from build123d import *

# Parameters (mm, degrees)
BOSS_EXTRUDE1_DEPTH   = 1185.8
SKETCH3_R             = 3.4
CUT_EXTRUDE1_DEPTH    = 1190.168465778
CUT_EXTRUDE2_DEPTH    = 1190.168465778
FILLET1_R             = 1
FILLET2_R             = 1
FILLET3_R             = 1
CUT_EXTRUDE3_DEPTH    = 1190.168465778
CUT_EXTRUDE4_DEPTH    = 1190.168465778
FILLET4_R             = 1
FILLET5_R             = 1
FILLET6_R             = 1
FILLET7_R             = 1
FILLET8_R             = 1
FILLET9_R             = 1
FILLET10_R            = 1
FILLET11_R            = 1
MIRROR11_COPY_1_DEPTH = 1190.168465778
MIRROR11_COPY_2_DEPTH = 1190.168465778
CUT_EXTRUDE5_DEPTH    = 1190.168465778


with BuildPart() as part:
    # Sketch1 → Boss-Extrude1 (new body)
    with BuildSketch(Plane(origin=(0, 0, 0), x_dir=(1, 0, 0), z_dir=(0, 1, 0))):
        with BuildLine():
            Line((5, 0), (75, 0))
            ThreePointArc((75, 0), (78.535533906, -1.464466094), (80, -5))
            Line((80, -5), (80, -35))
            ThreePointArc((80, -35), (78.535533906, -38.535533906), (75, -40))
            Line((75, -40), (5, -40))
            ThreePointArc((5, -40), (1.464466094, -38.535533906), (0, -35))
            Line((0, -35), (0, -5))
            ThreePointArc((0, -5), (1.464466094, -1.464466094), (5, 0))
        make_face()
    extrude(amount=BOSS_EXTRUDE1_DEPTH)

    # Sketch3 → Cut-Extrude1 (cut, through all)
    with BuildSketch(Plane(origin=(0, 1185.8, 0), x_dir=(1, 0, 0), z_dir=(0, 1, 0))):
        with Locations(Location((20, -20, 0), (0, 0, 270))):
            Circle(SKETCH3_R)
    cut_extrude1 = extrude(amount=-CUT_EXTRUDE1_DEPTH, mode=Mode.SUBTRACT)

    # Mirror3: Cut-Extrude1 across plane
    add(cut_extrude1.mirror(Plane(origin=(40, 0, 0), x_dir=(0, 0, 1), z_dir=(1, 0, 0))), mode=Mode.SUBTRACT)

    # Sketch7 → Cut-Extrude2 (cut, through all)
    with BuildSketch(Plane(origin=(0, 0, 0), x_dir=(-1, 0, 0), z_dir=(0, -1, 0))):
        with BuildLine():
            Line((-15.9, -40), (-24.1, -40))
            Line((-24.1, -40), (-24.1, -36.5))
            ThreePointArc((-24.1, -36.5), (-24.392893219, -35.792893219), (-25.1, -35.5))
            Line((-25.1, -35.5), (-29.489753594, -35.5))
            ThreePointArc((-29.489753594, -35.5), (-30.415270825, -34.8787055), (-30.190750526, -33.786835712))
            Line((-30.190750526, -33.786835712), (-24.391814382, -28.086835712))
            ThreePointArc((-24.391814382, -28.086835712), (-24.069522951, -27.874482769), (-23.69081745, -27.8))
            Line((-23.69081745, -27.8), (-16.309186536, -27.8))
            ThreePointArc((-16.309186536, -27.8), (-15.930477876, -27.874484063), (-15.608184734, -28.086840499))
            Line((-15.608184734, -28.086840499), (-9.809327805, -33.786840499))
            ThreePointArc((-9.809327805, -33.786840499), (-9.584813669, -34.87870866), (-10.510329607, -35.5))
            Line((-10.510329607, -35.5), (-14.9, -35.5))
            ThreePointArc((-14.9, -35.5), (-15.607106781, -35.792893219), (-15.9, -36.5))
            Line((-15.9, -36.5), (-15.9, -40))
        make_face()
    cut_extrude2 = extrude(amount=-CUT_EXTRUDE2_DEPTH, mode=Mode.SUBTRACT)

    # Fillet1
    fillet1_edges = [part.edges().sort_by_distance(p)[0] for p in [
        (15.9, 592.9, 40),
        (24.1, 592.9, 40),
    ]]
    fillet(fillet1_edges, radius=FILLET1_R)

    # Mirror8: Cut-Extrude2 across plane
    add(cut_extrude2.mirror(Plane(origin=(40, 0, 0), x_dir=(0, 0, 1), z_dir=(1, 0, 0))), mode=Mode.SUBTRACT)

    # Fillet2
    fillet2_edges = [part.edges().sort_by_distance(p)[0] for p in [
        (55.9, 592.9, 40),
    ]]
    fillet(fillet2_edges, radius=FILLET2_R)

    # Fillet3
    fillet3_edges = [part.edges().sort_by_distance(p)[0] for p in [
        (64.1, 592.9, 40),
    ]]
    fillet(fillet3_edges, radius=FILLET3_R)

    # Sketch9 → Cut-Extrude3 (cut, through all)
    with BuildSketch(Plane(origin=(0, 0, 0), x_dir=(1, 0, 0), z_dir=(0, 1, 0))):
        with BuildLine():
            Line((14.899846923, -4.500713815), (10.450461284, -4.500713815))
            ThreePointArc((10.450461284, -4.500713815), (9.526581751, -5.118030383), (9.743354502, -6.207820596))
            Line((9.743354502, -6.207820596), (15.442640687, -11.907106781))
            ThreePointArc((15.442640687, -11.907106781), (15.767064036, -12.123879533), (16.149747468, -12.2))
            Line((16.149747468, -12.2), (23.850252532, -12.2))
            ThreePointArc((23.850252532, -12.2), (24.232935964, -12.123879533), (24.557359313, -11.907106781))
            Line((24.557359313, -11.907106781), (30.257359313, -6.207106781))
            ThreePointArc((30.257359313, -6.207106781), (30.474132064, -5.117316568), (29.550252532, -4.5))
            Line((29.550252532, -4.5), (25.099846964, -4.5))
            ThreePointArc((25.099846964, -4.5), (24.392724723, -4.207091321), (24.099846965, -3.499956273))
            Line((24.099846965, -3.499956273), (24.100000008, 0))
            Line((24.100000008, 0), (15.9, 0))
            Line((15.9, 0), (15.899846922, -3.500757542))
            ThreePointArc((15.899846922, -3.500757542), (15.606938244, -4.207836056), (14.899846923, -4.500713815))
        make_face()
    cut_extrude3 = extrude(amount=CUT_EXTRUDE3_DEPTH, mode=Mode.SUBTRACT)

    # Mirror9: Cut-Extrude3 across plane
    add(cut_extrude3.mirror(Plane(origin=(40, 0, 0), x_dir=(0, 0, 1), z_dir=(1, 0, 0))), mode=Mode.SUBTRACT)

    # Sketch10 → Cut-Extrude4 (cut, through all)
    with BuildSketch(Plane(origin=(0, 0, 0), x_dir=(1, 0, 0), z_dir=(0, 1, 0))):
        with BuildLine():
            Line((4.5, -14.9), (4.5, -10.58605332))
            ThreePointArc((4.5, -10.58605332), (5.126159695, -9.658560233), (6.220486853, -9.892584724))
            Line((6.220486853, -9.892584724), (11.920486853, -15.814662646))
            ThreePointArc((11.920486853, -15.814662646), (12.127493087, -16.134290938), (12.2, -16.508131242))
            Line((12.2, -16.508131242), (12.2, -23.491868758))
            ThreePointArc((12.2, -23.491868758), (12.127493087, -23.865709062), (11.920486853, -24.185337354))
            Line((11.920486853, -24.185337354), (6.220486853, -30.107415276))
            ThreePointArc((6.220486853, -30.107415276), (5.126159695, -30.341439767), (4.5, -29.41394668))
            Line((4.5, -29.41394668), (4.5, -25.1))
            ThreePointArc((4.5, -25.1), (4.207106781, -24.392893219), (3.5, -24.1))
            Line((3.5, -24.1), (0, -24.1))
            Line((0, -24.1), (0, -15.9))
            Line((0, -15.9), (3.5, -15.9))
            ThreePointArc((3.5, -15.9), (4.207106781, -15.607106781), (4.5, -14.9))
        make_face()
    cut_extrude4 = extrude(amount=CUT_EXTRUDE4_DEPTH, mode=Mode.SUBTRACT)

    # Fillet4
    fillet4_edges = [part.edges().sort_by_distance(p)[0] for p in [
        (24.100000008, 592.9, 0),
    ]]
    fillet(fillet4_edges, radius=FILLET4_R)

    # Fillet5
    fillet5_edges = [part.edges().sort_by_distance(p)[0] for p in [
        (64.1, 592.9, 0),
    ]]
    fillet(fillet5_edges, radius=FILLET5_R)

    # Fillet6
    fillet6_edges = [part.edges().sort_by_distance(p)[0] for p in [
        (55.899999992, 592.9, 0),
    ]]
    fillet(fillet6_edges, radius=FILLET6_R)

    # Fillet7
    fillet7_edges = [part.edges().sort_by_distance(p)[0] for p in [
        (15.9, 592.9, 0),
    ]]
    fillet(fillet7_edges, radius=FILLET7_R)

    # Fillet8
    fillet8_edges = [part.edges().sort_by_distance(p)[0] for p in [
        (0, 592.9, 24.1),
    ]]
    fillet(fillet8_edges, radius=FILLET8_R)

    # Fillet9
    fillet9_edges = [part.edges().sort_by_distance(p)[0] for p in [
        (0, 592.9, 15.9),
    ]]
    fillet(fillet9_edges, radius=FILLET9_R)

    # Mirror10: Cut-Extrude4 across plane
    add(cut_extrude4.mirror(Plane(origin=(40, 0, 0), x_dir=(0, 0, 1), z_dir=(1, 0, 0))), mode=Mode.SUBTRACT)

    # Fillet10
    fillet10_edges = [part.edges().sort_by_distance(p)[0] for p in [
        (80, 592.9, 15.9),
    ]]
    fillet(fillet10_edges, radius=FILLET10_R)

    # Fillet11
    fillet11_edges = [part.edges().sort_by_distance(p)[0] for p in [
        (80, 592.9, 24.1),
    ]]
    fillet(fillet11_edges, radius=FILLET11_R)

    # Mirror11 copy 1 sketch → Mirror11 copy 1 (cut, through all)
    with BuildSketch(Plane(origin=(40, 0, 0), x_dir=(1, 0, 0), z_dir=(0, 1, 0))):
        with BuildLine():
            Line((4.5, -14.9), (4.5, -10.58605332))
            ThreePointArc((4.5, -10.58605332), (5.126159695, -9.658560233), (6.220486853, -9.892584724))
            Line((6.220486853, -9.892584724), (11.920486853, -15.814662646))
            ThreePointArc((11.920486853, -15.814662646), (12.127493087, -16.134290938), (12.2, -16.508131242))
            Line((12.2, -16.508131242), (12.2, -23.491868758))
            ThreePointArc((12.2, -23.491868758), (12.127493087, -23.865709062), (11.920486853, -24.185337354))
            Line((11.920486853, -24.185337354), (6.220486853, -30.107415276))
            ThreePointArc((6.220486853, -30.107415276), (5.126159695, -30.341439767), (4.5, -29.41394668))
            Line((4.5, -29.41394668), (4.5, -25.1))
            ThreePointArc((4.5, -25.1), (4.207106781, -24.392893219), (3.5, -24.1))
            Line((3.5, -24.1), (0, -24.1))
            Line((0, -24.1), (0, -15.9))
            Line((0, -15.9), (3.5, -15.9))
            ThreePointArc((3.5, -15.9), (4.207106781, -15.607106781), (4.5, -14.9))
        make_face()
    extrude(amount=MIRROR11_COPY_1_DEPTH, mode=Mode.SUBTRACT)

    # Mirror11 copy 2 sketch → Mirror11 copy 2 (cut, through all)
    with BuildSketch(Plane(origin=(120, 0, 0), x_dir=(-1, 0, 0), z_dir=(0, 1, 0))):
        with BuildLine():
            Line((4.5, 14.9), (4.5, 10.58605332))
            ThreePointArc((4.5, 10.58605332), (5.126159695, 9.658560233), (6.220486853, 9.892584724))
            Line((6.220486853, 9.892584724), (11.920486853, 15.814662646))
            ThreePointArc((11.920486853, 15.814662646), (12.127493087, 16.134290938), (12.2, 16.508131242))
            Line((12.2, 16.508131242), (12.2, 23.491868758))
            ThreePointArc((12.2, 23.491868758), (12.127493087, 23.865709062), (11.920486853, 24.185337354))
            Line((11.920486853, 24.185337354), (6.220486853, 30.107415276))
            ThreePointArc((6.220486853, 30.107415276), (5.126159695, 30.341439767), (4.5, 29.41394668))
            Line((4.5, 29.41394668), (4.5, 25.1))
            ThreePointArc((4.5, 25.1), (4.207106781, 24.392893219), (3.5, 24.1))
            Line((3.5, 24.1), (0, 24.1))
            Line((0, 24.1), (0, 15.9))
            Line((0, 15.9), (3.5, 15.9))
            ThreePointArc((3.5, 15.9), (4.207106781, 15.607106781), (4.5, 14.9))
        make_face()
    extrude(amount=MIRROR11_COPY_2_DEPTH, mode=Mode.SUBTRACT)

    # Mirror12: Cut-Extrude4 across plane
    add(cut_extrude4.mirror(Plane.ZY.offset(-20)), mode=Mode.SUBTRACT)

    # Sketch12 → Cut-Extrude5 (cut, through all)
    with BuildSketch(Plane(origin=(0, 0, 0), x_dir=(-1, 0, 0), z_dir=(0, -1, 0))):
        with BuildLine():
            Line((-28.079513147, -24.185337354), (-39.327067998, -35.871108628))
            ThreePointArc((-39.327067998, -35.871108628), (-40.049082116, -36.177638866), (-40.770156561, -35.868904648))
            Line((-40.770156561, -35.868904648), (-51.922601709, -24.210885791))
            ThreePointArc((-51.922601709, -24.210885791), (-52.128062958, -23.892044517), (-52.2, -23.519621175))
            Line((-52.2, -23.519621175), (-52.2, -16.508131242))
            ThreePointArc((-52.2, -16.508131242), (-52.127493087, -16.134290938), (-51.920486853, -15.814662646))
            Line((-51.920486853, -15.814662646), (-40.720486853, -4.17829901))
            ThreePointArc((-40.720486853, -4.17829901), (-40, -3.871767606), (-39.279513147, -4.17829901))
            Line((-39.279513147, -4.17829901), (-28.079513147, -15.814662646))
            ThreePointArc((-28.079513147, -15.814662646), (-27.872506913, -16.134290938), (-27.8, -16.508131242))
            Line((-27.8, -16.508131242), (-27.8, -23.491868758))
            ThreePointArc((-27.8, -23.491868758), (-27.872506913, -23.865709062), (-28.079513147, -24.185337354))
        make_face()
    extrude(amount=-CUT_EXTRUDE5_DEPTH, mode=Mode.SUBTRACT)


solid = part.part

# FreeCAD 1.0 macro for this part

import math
import FreeCAD as App
import Part
import Sketcher
from FreeCAD import Vector


def edges_at(feature, points):
    """Names of the edges that pass closest to the given points."""
    edges = feature.Shape.Edges
    near = lambda p: min(range(len(edges)), key=lambda i: edges[i].distToShape(Part.Vertex(*p))[0])
    return sorted({f"Edge{near(p) + 1}" for p in points})

doc = App.newDocument("Part")
body = doc.addObject("PartDesign::Body", "Body")

sketch1 = body.newObject("Sketcher::SketchObject", "Sketch")
sketch1.AttachmentSupport = (doc.getObject("XZ_Plane"), [""])
sketch1.MapMode = "FlatFace"
sketch1.addGeometry([
    Part.LineSegment(Vector(75, 0, 0), Vector(5, 0, 0)),
    Part.ArcOfCircle(Part.Circle(Vector(5, 5, 0), Vector(0, 0, 1), 5), math.radians(180), math.radians(270)),
    Part.LineSegment(Vector(0, 5, 0), Vector(0, 35, 0)),
    Part.ArcOfCircle(Part.Circle(Vector(5, 35, 0), Vector(0, 0, 1), 5), math.radians(90), math.radians(180)),
    Part.LineSegment(Vector(5, 40, 0), Vector(75, 40, 0)),
    Part.ArcOfCircle(Part.Circle(Vector(75, 35, 0), Vector(0, 0, 1), 5), math.radians(0), math.radians(90)),
    Part.LineSegment(Vector(80, 35, 0), Vector(80, 5, 0)),
    Part.ArcOfCircle(Part.Circle(Vector(75, 5, 0), Vector(0, 0, 1), 5), math.radians(-90), math.radians(0)),
], False)
sketch1.addConstraint([
    Sketcher.Constraint("Tangent", 0, 2, 1, 2),
    Sketcher.Constraint("Tangent", 1, 1, 2, 1),
    Sketcher.Constraint("Tangent", 2, 2, 3, 2),
    Sketcher.Constraint("Tangent", 3, 1, 4, 1),
    Sketcher.Constraint("Tangent", 4, 2, 5, 2),
    Sketcher.Constraint("Tangent", 5, 1, 6, 1),
    Sketcher.Constraint("Tangent", 6, 2, 7, 2),
    Sketcher.Constraint("Tangent", 7, 1, 0, 1),
    Sketcher.Constraint("Horizontal", 0),
    Sketcher.Constraint("Vertical", 2),
    Sketcher.Constraint("Horizontal", 4),
    Sketcher.Constraint("Vertical", 6),
    Sketcher.Constraint("Equal", 1, 3),
    Sketcher.Constraint("Equal", 3, 5),
    Sketcher.Constraint("Equal", 5, 7),
    Sketcher.Constraint("PointOnObject", 0, 2, -1),
    Sketcher.Constraint("PointOnObject", 1, 1, -2),
    Sketcher.Constraint("Radius", 1, 5.0),
    Sketcher.Constraint("DistanceX", 0, 2, 0, 1, 70.0),
    Sketcher.Constraint("DistanceY", 2, 1, 2, 2, 30.0),
])
pad1 = body.newObject("PartDesign::Pad", "Pad")
pad1.Profile = sketch1
pad1.Length = 1185.8
pad1.Reversed = True

sketch2 = body.newObject("Sketcher::SketchObject", "Sketch001")
sketch2.AttachmentSupport = (doc.getObject("XZ_Plane"), [""])
sketch2.MapMode = "FlatFace"
sketch2.AttachmentOffset = App.Placement(Vector(0, 0, -1185.8), App.Rotation())
sketch2.addGeometry(Part.Circle(Vector(20, 20, 0), Vector(0, 0, 1), 3.4), False)
sketch2.addConstraint([
    Sketcher.Constraint("Diameter", 0, 6.8),
    Sketcher.Constraint("DistanceX", -1, 1, 0, 3, 20.0),
    Sketcher.Constraint("DistanceY", -1, 1, 0, 3, 20.0),
])
pocket1 = body.newObject("PartDesign::Pocket", "Pocket")
pocket1.Profile = sketch2
pocket1.Type = "ThroughAll"
pocket1.Reversed = True
doc.recompute()

datumplane = body.newObject("PartDesign::Plane", "DatumPlane")
datumplane.AttachmentSupport = (doc.getObject("YZ_Plane"), [""])
datumplane.MapMode = "FlatFace"
datumplane.AttachmentOffset = App.Placement(Vector(0, 0, 40), App.Rotation())
mirrored = body.newObject("PartDesign::Mirrored", "Mirrored")
mirrored.Originals = [pocket1]
mirrored.MirrorPlane = (datumplane, [""])
body.Tip = mirrored

sketch3 = body.newObject("Sketcher::SketchObject", "Sketch002")
sketch3.AttachmentSupport = (doc.getObject("XZ_Plane"), [""])
sketch3.MapMode = "FlatFace"
sketch3.addGeometry([
    Part.LineSegment(Vector(24.1, 40, 0), Vector(15.9, 40, 0)),
    Part.LineSegment(Vector(15.9, 40, 0), Vector(15.9, 36.5, 0)),
    Part.ArcOfCircle(Part.Circle(Vector(14.9, 36.5, 0), Vector(0, 0, 1), 1), math.radians(-90), math.radians(0)),
    Part.LineSegment(Vector(14.9, 35.5, 0), Vector(10.5, 35.5, 0)),
    Part.ArcOfCircle(Part.Circle(Vector(10.5, 34.5, 0), Vector(0, 0, 1), 1), math.radians(90), math.radians(225)),
    Part.LineSegment(Vector(9.8, 33.8, 0), Vector(15.6, 28.1, 0)),
    Part.ArcOfCircle(Part.Circle(Vector(16.3, 28.8, 0), Vector(0, 0, 1), 1), math.radians(-135), math.radians(-90)),
    Part.LineSegment(Vector(16.3, 27.8, 0), Vector(23.7, 27.8, 0)),
    Part.ArcOfCircle(Part.Circle(Vector(23.7, 28.8, 0), Vector(0, 0, 1), 1), math.radians(-90), math.radians(-45)),
    Part.LineSegment(Vector(24.4, 28.1, 0), Vector(30.2, 33.8, 0)),
    Part.ArcOfCircle(Part.Circle(Vector(29.5, 34.5, 0), Vector(0, 0, 1), 1), math.radians(-45), math.radians(90)),
    Part.LineSegment(Vector(29.5, 35.5, 0), Vector(25.1, 35.5, 0)),
    Part.ArcOfCircle(Part.Circle(Vector(25.1, 36.5, 0), Vector(0, 0, 1), 1), math.radians(-180), math.radians(-90)),
    Part.LineSegment(Vector(24.1, 36.5, 0), Vector(24.1, 40, 0)),
], False)
sketch3.addConstraint([
    Sketcher.Constraint("Coincident", 0, 2, 1, 1),
    Sketcher.Constraint("Tangent", 1, 2, 2, 2),
    Sketcher.Constraint("Tangent", 2, 1, 3, 1),
    Sketcher.Constraint("Tangent", 3, 2, 4, 1),
    Sketcher.Constraint("Tangent", 4, 2, 5, 1),
    Sketcher.Constraint("Tangent", 5, 2, 6, 1),
    Sketcher.Constraint("Tangent", 6, 2, 7, 1),
    Sketcher.Constraint("Tangent", 7, 2, 8, 1),
    Sketcher.Constraint("Tangent", 8, 2, 9, 1),
    Sketcher.Constraint("Tangent", 9, 2, 10, 1),
    Sketcher.Constraint("Tangent", 10, 2, 11, 1),
    Sketcher.Constraint("Tangent", 11, 2, 12, 2),
    Sketcher.Constraint("Tangent", 12, 1, 13, 1),
    Sketcher.Constraint("Coincident", 13, 2, 0, 1),
    Sketcher.Constraint("Horizontal", 0),
    Sketcher.Constraint("Vertical", 1),
    Sketcher.Constraint("Horizontal", 3),
    Sketcher.Constraint("Horizontal", 7),
    Sketcher.Constraint("Horizontal", 11),
    Sketcher.Constraint("Vertical", 13),
    Sketcher.Constraint("Equal", 2, 4),
    Sketcher.Constraint("Equal", 4, 6),
    Sketcher.Constraint("Equal", 6, 8),
    Sketcher.Constraint("Equal", 8, 10),
    Sketcher.Constraint("Equal", 10, 12),
    Sketcher.Constraint("Horizontal", 4, 3, 10, 3),
    Sketcher.Constraint("Radius", 2, 1.0),
    Sketcher.Constraint("DistanceX", 0, 2, 0, 1, 8.2),
    Sketcher.Constraint("DistanceY", 1, 2, 1, 1, 3.5),
    Sketcher.Constraint("DistanceY", -1, 1, 0, 2, 40.0),
    Sketcher.Constraint("DistanceX", -1, 1, 2, 3, 14.9),
    Sketcher.Constraint("DistanceY", -1, 1, 6, 3, 28.8),
    Sketcher.Constraint("DistanceX", 4, 2, 4, 3, 0.701002),
    Sketcher.Constraint("DistanceX", 3, 2, 3, 1, 4.38967),
    Sketcher.Constraint("DistanceX", 7, 1, 7, 2, 7.381631),
    Sketcher.Constraint("DistanceX", 11, 2, 11, 1, 4.389754),
])
pocket2 = body.newObject("PartDesign::Pocket", "Pocket001")
pocket2.Profile = sketch3
pocket2.Type = "ThroughAll"
doc.recompute()

fillet = body.newObject("PartDesign::Fillet", "Fillet")
fillet.Base = (pocket2, edges_at(pocket2, [(15.9, 592.9, 40), (24.1, 592.9, 40)]))
fillet.Radius = 1
doc.recompute()

datumplane2 = body.newObject("PartDesign::Plane", "DatumPlane001")
datumplane2.AttachmentSupport = (doc.getObject("YZ_Plane"), [""])
datumplane2.MapMode = "FlatFace"
datumplane2.AttachmentOffset = App.Placement(Vector(0, 0, 40), App.Rotation())
mirrored2 = body.newObject("PartDesign::Mirrored", "Mirrored001")
mirrored2.Originals = [pocket2]
mirrored2.MirrorPlane = (datumplane2, [""])
body.Tip = mirrored2
doc.recompute()

fillet2 = body.newObject("PartDesign::Fillet", "Fillet001")
fillet2.Base = (mirrored2, edges_at(mirrored2, [(55.9, 592.9, 40)]))
fillet2.Radius = 1
doc.recompute()

fillet3 = body.newObject("PartDesign::Fillet", "Fillet002")
fillet3.Base = (fillet2, edges_at(fillet2, [(64.1, 592.9, 40)]))
fillet3.Radius = 1

sketch4 = body.newObject("Sketcher::SketchObject", "Sketch003")
sketch4.AttachmentSupport = (doc.getObject("XZ_Plane"), [""])
sketch4.MapMode = "FlatFace"
sketch4.addGeometry([
    Part.LineSegment(Vector(14.9, 4.5, 0), Vector(10.5, 4.5, 0)),
    Part.ArcOfCircle(Part.Circle(Vector(10.5, 5.5, 0), Vector(0, 0, 1), 1), math.radians(135), math.radians(270)),
    Part.LineSegment(Vector(9.7, 6.2, 0), Vector(15.4, 11.9, 0)),
    Part.ArcOfCircle(Part.Circle(Vector(16.1, 11.2, 0), Vector(0, 0, 1), 1), math.radians(90), math.radians(135)),
    Part.LineSegment(Vector(16.1, 12.2, 0), Vector(23.9, 12.2, 0)),
    Part.ArcOfCircle(Part.Circle(Vector(23.9, 11.2, 0), Vector(0, 0, 1), 1), math.radians(45), math.radians(90)),
    Part.LineSegment(Vector(24.6, 11.9, 0), Vector(30.3, 6.2, 0)),
    Part.ArcOfCircle(Part.Circle(Vector(29.6, 5.5, 0), Vector(0, 0, 1), 1), math.radians(-90), math.radians(45)),
    Part.LineSegment(Vector(29.6, 4.5, 0), Vector(25.1, 4.5, 0)),
    Part.ArcOfCircle(Part.Circle(Vector(25.1, 3.5, 0), Vector(0, 0, 1), 1), math.radians(90), math.radians(180)),
    Part.LineSegment(Vector(24.1, 3.5, 0), Vector(24.1, 0, 0)),
    Part.LineSegment(Vector(24.1, 0, 0), Vector(15.9, 0, 0)),
    Part.LineSegment(Vector(15.9, 0, 0), Vector(15.9, 3.5, 0)),
    Part.ArcOfCircle(Part.Circle(Vector(14.9, 3.5, 0), Vector(0, 0, 1), 1), math.radians(0), math.radians(90)),
], False)
sketch4.addConstraint([
    Sketcher.Constraint("Tangent", 0, 2, 1, 2),
    Sketcher.Constraint("Tangent", 1, 1, 2, 1),
    Sketcher.Constraint("Tangent", 2, 2, 3, 2),
    Sketcher.Constraint("Tangent", 3, 1, 4, 1),
    Sketcher.Constraint("Tangent", 4, 2, 5, 2),
    Sketcher.Constraint("Tangent", 5, 1, 6, 1),
    Sketcher.Constraint("Tangent", 6, 2, 7, 2),
    Sketcher.Constraint("Tangent", 7, 1, 8, 1),
    Sketcher.Constraint("Tangent", 8, 2, 9, 1),
    Sketcher.Constraint("Tangent", 9, 2, 10, 1),
    Sketcher.Constraint("Coincident", 10, 2, 11, 1),
    Sketcher.Constraint("Coincident", 11, 2, 12, 1),
    Sketcher.Constraint("Tangent", 12, 2, 13, 1),
    Sketcher.Constraint("Tangent", 13, 2, 0, 1),
    Sketcher.Constraint("Horizontal", 0),
    Sketcher.Constraint("Horizontal", 4),
    Sketcher.Constraint("Horizontal", 8),
    Sketcher.Constraint("Horizontal", 11),
    Sketcher.Constraint("Equal", 1, 3),
    Sketcher.Constraint("Equal", 3, 5),
    Sketcher.Constraint("Equal", 5, 7),
    Sketcher.Constraint("Equal", 7, 9),
    Sketcher.Constraint("Equal", 9, 13),
    Sketcher.Constraint("PointOnObject", 10, 2, -1),
    Sketcher.Constraint("Perpendicular", 2, 6),
    Sketcher.Constraint("Parallel", 10, 12),
    Sketcher.Constraint("Horizontal", 2, 2, 5, 1),
    Sketcher.Constraint("Radius", 1, 1.0),
    Sketcher.Constraint("DistanceX", 11, 2, 11, 1, 8.2),
    Sketcher.Constraint("DistanceY", -1, 1, 3, 3, 11.2),
    Sketcher.Constraint("DistanceY", -1, 1, 7, 3, 5.5),
    Sketcher.Constraint("DistanceX", -1, 1, 10, 2, 24.1),
    Sketcher.Constraint("DistanceX", 3, 3, 9, 3, 8.950099),
    Sketcher.Constraint("DistanceX", 1, 1, 5, 3, 14.106898),
    Sketcher.Constraint("DistanceX", 0, 2, 0, 1, 4.449386),
    Sketcher.Constraint("DistanceX", -1, 1, 1, 3, 10.450461),
])
pocket3 = body.newObject("PartDesign::Pocket", "Pocket002")
pocket3.Profile = sketch4
pocket3.Type = "ThroughAll"
doc.recompute()

datumplane3 = body.newObject("PartDesign::Plane", "DatumPlane002")
datumplane3.AttachmentSupport = (doc.getObject("YZ_Plane"), [""])
datumplane3.MapMode = "FlatFace"
datumplane3.AttachmentOffset = App.Placement(Vector(0, 0, 40), App.Rotation())
mirrored3 = body.newObject("PartDesign::Mirrored", "Mirrored002")
mirrored3.Originals = [pocket3]
mirrored3.MirrorPlane = (datumplane3, [""])
body.Tip = mirrored3

sketch5 = body.newObject("Sketcher::SketchObject", "Sketch004")
sketch5.AttachmentSupport = (doc.getObject("XZ_Plane"), [""])
sketch5.MapMode = "FlatFace"
sketch5.addGeometry([
    Part.LineSegment(Vector(4.5, 10.6, 0), Vector(4.5, 14.9, 0)),
    Part.ArcOfCircle(Part.Circle(Vector(3.5, 14.9, 0), Vector(0, 0, 1), 1), math.radians(0), math.radians(90)),
    Part.LineSegment(Vector(3.5, 15.9, 0), Vector(0, 15.9, 0)),
    Part.LineSegment(Vector(0, 15.9, 0), Vector(0, 24.1, 0)),
    Part.LineSegment(Vector(0, 24.1, 0), Vector(3.5, 24.1, 0)),
    Part.ArcOfCircle(Part.Circle(Vector(3.5, 25.1, 0), Vector(0, 0, 1), 1), math.radians(-90), math.radians(0)),
    Part.LineSegment(Vector(4.5, 25.1, 0), Vector(4.5, 29.4, 0)),
    Part.ArcOfCircle(Part.Circle(Vector(5.5, 29.4, 0), Vector(0, 0, 1), 1), math.radians(44), math.radians(180)),
    Part.LineSegment(Vector(6.2, 30.1, 0), Vector(11.9, 24.2, 0)),
    Part.ArcOfCircle(Part.Circle(Vector(11.2, 23.5, 0), Vector(0, 0, 1), 1), math.radians(0), math.radians(44)),
    Part.LineSegment(Vector(12.2, 23.5, 0), Vector(12.2, 16.5, 0)),
    Part.ArcOfCircle(Part.Circle(Vector(11.2, 16.5, 0), Vector(0, 0, 1), 1), math.radians(-44), math.radians(0)),
    Part.LineSegment(Vector(11.9, 15.8, 0), Vector(6.2, 9.9, 0)),
    Part.ArcOfCircle(Part.Circle(Vector(5.5, 10.6, 0), Vector(0, 0, 1), 1), math.radians(180), math.radians(316)),
], False)
sketch5.addConstraint([
    Sketcher.Constraint("Tangent", 0, 2, 1, 1),
    Sketcher.Constraint("Tangent", 1, 2, 2, 1),
    Sketcher.Constraint("Coincident", 2, 2, 3, 1),
    Sketcher.Constraint("Coincident", 3, 2, 4, 1),
    Sketcher.Constraint("Tangent", 4, 2, 5, 1),
    Sketcher.Constraint("Tangent", 5, 2, 6, 1),
    Sketcher.Constraint("Tangent", 6, 2, 7, 2),
    Sketcher.Constraint("Tangent", 7, 1, 8, 1),
    Sketcher.Constraint("Tangent", 8, 2, 9, 2),
    Sketcher.Constraint("Tangent", 9, 1, 10, 1),
    Sketcher.Constraint("Tangent", 10, 2, 11, 2),
    Sketcher.Constraint("Tangent", 11, 1, 12, 1),
    Sketcher.Constraint("Tangent", 12, 2, 13, 2),
    Sketcher.Constraint("Tangent", 13, 1, 0, 1),
    Sketcher.Constraint("Vertical", 0),
    Sketcher.Constraint("Horizontal", 2),
    Sketcher.Constraint("Vertical", 3),
    Sketcher.Constraint("Horizontal", 4),
    Sketcher.Constraint("Vertical", 6),
    Sketcher.Constraint("Vertical", 10),
    Sketcher.Constraint("Equal", 1, 5),
    Sketcher.Constraint("Equal", 5, 7),
    Sketcher.Constraint("Equal", 7, 9),
    Sketcher.Constraint("Equal", 9, 11),
    Sketcher.Constraint("Equal", 11, 13),
    Sketcher.Constraint("PointOnObject", 2, 2, -2),
    Sketcher.Constraint("Vertical", 1, 3, 5, 3),
    Sketcher.Constraint("Vertical", 8, 2, 11, 1),
    Sketcher.Constraint("Equal", 0, 6),
    Sketcher.Constraint("Radius", 1, 1.0),
    Sketcher.Constraint("DistanceX", 2, 2, 2, 1, 3.5),
    Sketcher.Constraint("DistanceY", 3, 1, 3, 2, 8.2),
    Sketcher.Constraint("DistanceY", -1, 1, 1, 3, 14.9),
    Sketcher.Constraint("DistanceX", -1, 1, 9, 3, 11.2),
    Sketcher.Constraint("Distance", 8, 8.21955),
    Sketcher.Constraint("DistanceY", 0, 1, 0, 2, 4.313947),
])
pocket4 = body.newObject("PartDesign::Pocket", "Pocket003")
pocket4.Profile = sketch5
pocket4.Type = "ThroughAll"
doc.recompute()

fillet4 = body.newObject("PartDesign::Fillet", "Fillet003")
fillet4.Base = (pocket4, edges_at(pocket4, [(24.1, 592.9, 0)]))
fillet4.Radius = 1
doc.recompute()

fillet5 = body.newObject("PartDesign::Fillet", "Fillet004")
fillet5.Base = (fillet4, edges_at(fillet4, [(64.1, 592.9, 0)]))
fillet5.Radius = 1
doc.recompute()

fillet6 = body.newObject("PartDesign::Fillet", "Fillet005")
fillet6.Base = (fillet5, edges_at(fillet5, [(55.9, 592.9, 0)]))
fillet6.Radius = 1
doc.recompute()

fillet7 = body.newObject("PartDesign::Fillet", "Fillet006")
fillet7.Base = (fillet6, edges_at(fillet6, [(15.9, 592.9, 0)]))
fillet7.Radius = 1
doc.recompute()

fillet8 = body.newObject("PartDesign::Fillet", "Fillet007")
fillet8.Base = (fillet7, edges_at(fillet7, [(0, 592.9, 24.1)]))
fillet8.Radius = 1
doc.recompute()

fillet9 = body.newObject("PartDesign::Fillet", "Fillet008")
fillet9.Base = (fillet8, edges_at(fillet8, [(0, 592.9, 15.9)]))
fillet9.Radius = 1
doc.recompute()

datumplane4 = body.newObject("PartDesign::Plane", "DatumPlane003")
datumplane4.AttachmentSupport = (doc.getObject("YZ_Plane"), [""])
datumplane4.MapMode = "FlatFace"
datumplane4.AttachmentOffset = App.Placement(Vector(0, 0, 40), App.Rotation())
mirrored4 = body.newObject("PartDesign::Mirrored", "Mirrored003")
mirrored4.Originals = [pocket4]
mirrored4.MirrorPlane = (datumplane4, [""])
body.Tip = mirrored4
doc.recompute()

fillet10 = body.newObject("PartDesign::Fillet", "Fillet009")
fillet10.Base = (mirrored4, edges_at(mirrored4, [(80, 592.9, 15.9)]))
fillet10.Radius = 1
doc.recompute()

fillet11 = body.newObject("PartDesign::Fillet", "Fillet010")
fillet11.Base = (fillet10, edges_at(fillet10, [(80, 592.9, 24.1)]))
fillet11.Radius = 1

sketch6 = body.newObject("Sketcher::SketchObject", "Sketch005")
sketch6.AttachmentSupport = (doc.getObject("XZ_Plane"), [""])
sketch6.MapMode = "FlatFace"
sketch6.addGeometry([
    Part.LineSegment(Vector(44.5, 10.6, 0), Vector(44.5, 14.9, 0)),
    Part.ArcOfCircle(Part.Circle(Vector(43.5, 14.9, 0), Vector(0, 0, 1), 1), math.radians(0), math.radians(90)),
    Part.LineSegment(Vector(43.5, 15.9, 0), Vector(40, 15.9, 0)),
    Part.LineSegment(Vector(40, 15.9, 0), Vector(40, 24.1, 0)),
    Part.LineSegment(Vector(40, 24.1, 0), Vector(43.5, 24.1, 0)),
    Part.ArcOfCircle(Part.Circle(Vector(43.5, 25.1, 0), Vector(0, 0, 1), 1), math.radians(-90), math.radians(0)),
    Part.LineSegment(Vector(44.5, 25.1, 0), Vector(44.5, 29.4, 0)),
    Part.ArcOfCircle(Part.Circle(Vector(45.5, 29.4, 0), Vector(0, 0, 1), 1), math.radians(44), math.radians(180)),
    Part.LineSegment(Vector(46.2, 30.1, 0), Vector(51.9, 24.2, 0)),
    Part.ArcOfCircle(Part.Circle(Vector(51.2, 23.5, 0), Vector(0, 0, 1), 1), math.radians(0), math.radians(44)),
    Part.LineSegment(Vector(52.2, 23.5, 0), Vector(52.2, 16.5, 0)),
    Part.ArcOfCircle(Part.Circle(Vector(51.2, 16.5, 0), Vector(0, 0, 1), 1), math.radians(-44), math.radians(0)),
    Part.LineSegment(Vector(51.9, 15.8, 0), Vector(46.2, 9.9, 0)),
    Part.ArcOfCircle(Part.Circle(Vector(45.5, 10.6, 0), Vector(0, 0, 1), 1), math.radians(180), math.radians(316)),
], False)
sketch6.addConstraint([
    Sketcher.Constraint("Tangent", 0, 2, 1, 1),
    Sketcher.Constraint("Tangent", 1, 2, 2, 1),
    Sketcher.Constraint("Coincident", 2, 2, 3, 1),
    Sketcher.Constraint("Coincident", 3, 2, 4, 1),
    Sketcher.Constraint("Tangent", 4, 2, 5, 1),
    Sketcher.Constraint("Tangent", 5, 2, 6, 1),
    Sketcher.Constraint("Tangent", 6, 2, 7, 2),
    Sketcher.Constraint("Tangent", 7, 1, 8, 1),
    Sketcher.Constraint("Tangent", 8, 2, 9, 2),
    Sketcher.Constraint("Tangent", 9, 1, 10, 1),
    Sketcher.Constraint("Tangent", 10, 2, 11, 2),
    Sketcher.Constraint("Tangent", 11, 1, 12, 1),
    Sketcher.Constraint("Tangent", 12, 2, 13, 2),
    Sketcher.Constraint("Tangent", 13, 1, 0, 1),
    Sketcher.Constraint("Vertical", 0),
    Sketcher.Constraint("Horizontal", 2),
    Sketcher.Constraint("Vertical", 3),
    Sketcher.Constraint("Horizontal", 4),
    Sketcher.Constraint("Vertical", 6),
    Sketcher.Constraint("Vertical", 10),
    Sketcher.Constraint("Equal", 1, 5),
    Sketcher.Constraint("Equal", 5, 7),
    Sketcher.Constraint("Equal", 7, 9),
    Sketcher.Constraint("Equal", 9, 11),
    Sketcher.Constraint("Equal", 11, 13),
    Sketcher.Constraint("Vertical", 1, 3, 5, 3),
    Sketcher.Constraint("Vertical", 8, 2, 11, 1),
    Sketcher.Constraint("Equal", 0, 6),
    Sketcher.Constraint("Radius", 1, 1.0),
    Sketcher.Constraint("DistanceX", 2, 2, 2, 1, 3.5),
    Sketcher.Constraint("DistanceY", 3, 1, 3, 2, 8.2),
    Sketcher.Constraint("DistanceX", -1, 1, 2, 2, 40.0),
    Sketcher.Constraint("DistanceY", -1, 1, 1, 3, 14.9),
    Sketcher.Constraint("DistanceX", -1, 1, 9, 3, 51.2),
    Sketcher.Constraint("Distance", 8, 8.21955),
    Sketcher.Constraint("DistanceY", 0, 1, 0, 2, 4.313947),
])
pocket5 = body.newObject("PartDesign::Pocket", "Pocket004")
pocket5.Profile = sketch6
pocket5.Type = "ThroughAll"

sketch7 = body.newObject("Sketcher::SketchObject", "Sketch006")
sketch7.AttachmentSupport = (doc.getObject("XZ_Plane"), [""])
sketch7.MapMode = "FlatFace"
sketch7.addGeometry([
    Part.LineSegment(Vector(115.5, 14.9, 0), Vector(115.5, 10.6, 0)),
    Part.ArcOfCircle(Part.Circle(Vector(114.5, 10.6, 0), Vector(0, 0, 1), 1), math.radians(-136), math.radians(0)),
    Part.LineSegment(Vector(113.8, 9.9, 0), Vector(108.1, 15.8, 0)),
    Part.ArcOfCircle(Part.Circle(Vector(108.8, 16.5, 0), Vector(0, 0, 1), 1), math.radians(-180), math.radians(-136)),
    Part.LineSegment(Vector(107.8, 16.5, 0), Vector(107.8, 23.5, 0)),
    Part.ArcOfCircle(Part.Circle(Vector(108.8, 23.5, 0), Vector(0, 0, 1), 1), math.radians(136), math.radians(180)),
    Part.LineSegment(Vector(108.1, 24.2, 0), Vector(113.8, 30.1, 0)),
    Part.ArcOfCircle(Part.Circle(Vector(114.5, 29.4, 0), Vector(0, 0, 1), 1), math.radians(0), math.radians(136)),
    Part.LineSegment(Vector(115.5, 29.4, 0), Vector(115.5, 25.1, 0)),
    Part.ArcOfCircle(Part.Circle(Vector(116.5, 25.1, 0), Vector(0, 0, 1), 1), math.radians(-180), math.radians(-90)),
    Part.LineSegment(Vector(116.5, 24.1, 0), Vector(120, 24.1, 0)),
    Part.LineSegment(Vector(120, 24.1, 0), Vector(120, 15.9, 0)),
    Part.LineSegment(Vector(120, 15.9, 0), Vector(116.5, 15.9, 0)),
    Part.ArcOfCircle(Part.Circle(Vector(116.5, 14.9, 0), Vector(0, 0, 1), 1), math.radians(90), math.radians(180)),
], False)
sketch7.addConstraint([
    Sketcher.Constraint("Tangent", 0, 2, 1, 2),
    Sketcher.Constraint("Tangent", 1, 1, 2, 1),
    Sketcher.Constraint("Tangent", 2, 2, 3, 2),
    Sketcher.Constraint("Tangent", 3, 1, 4, 1),
    Sketcher.Constraint("Tangent", 4, 2, 5, 2),
    Sketcher.Constraint("Tangent", 5, 1, 6, 1),
    Sketcher.Constraint("Tangent", 6, 2, 7, 2),
    Sketcher.Constraint("Tangent", 7, 1, 8, 1),
    Sketcher.Constraint("Tangent", 8, 2, 9, 1),
    Sketcher.Constraint("Tangent", 9, 2, 10, 1),
    Sketcher.Constraint("Coincident", 10, 2, 11, 1),
    Sketcher.Constraint("Coincident", 11, 2, 12, 1),
    Sketcher.Constraint("Tangent", 12, 2, 13, 1),
    Sketcher.Constraint("Tangent", 13, 2, 0, 1),
    Sketcher.Constraint("Vertical", 0),
    Sketcher.Constraint("Vertical", 4),
    Sketcher.Constraint("Vertical", 8),
    Sketcher.Constraint("Horizontal", 10),
    Sketcher.Constraint("Vertical", 11),
    Sketcher.Constraint("Horizontal", 12),
    Sketcher.Constraint("Equal", 1, 3),
    Sketcher.Constraint("Equal", 3, 5),
    Sketcher.Constraint("Equal", 5, 7),
    Sketcher.Constraint("Equal", 7, 9),
    Sketcher.Constraint("Equal", 9, 13),
    Sketcher.Constraint("Vertical", 1, 3, 7, 3),
    Sketcher.Constraint("Vertical", 2, 2, 5, 1),
    Sketcher.Constraint("Equal", 0, 8),
    Sketcher.Constraint("Radius", 1, 1.0),
    Sketcher.Constraint("DistanceX", 10, 1, 10, 2, 3.5),
    Sketcher.Constraint("DistanceY", 11, 2, 11, 1, 8.2),
    Sketcher.Constraint("DistanceX", -1, 1, 10, 2, 120.0),
    Sketcher.Constraint("DistanceX", -1, 1, 3, 3, 108.8),
    Sketcher.Constraint("DistanceY", -1, 1, 9, 3, 25.1),
    Sketcher.Constraint("Distance", 2, 8.21955),
    Sketcher.Constraint("DistanceY", 0, 2, 0, 1, 4.313947),
])
pocket6 = body.newObject("PartDesign::Pocket", "Pocket005")
pocket6.Profile = sketch7
pocket6.Type = "ThroughAll"
doc.recompute()

datumplane5 = body.newObject("PartDesign::Plane", "DatumPlane004")
datumplane5.AttachmentSupport = (doc.getObject("YZ_Plane"), [""])
datumplane5.MapMode = "FlatFace"
datumplane5.AttachmentOffset = App.Placement(Vector(0, 0, 20), App.Rotation())
mirrored5 = body.newObject("PartDesign::Mirrored", "Mirrored004")
mirrored5.Originals = [pocket4]
mirrored5.MirrorPlane = (datumplane5, [""])
body.Tip = mirrored5

sketch8 = body.newObject("Sketcher::SketchObject", "Sketch007")
sketch8.AttachmentSupport = (doc.getObject("XZ_Plane"), [""])
sketch8.MapMode = "FlatFace"
sketch8.addGeometry([
    Part.LineSegment(Vector(39.3, 35.9, 0), Vector(28.1, 24.2, 0)),
    Part.ArcOfCircle(Part.Circle(Vector(28.8, 23.5, 0), Vector(0, 0, 1), 1), math.radians(136), math.radians(180)),
    Part.LineSegment(Vector(27.8, 23.5, 0), Vector(27.8, 16.5, 0)),
    Part.ArcOfCircle(Part.Circle(Vector(28.8, 16.5, 0), Vector(0, 0, 1), 1), math.radians(-180), math.radians(-136)),
    Part.LineSegment(Vector(28.1, 15.8, 0), Vector(39.3, 4.2, 0)),
    Part.ArcOfCircle(Part.Circle(Vector(40, 4.9, 0), Vector(0, 0, 1), 1), math.radians(-136), math.radians(-44)),
    Part.LineSegment(Vector(40.7, 4.2, 0), Vector(51.9, 15.8, 0)),
    Part.ArcOfCircle(Part.Circle(Vector(51.2, 16.5, 0), Vector(0, 0, 1), 1), math.radians(-44), math.radians(0)),
    Part.LineSegment(Vector(52.2, 16.5, 0), Vector(52.2, 23.5, 0)),
    Part.ArcOfCircle(Part.Circle(Vector(51.2, 23.5, 0), Vector(0, 0, 1), 1), math.radians(0), math.radians(44)),
    Part.LineSegment(Vector(51.9, 24.2, 0), Vector(40.8, 35.9, 0)),
    Part.ArcOfCircle(Part.Circle(Vector(40, 35.2, 0), Vector(0, 0, 1), 1), math.radians(44), math.radians(136)),
], False)
sketch8.addConstraint([
    Sketcher.Constraint("Tangent", 0, 2, 1, 1),
    Sketcher.Constraint("Tangent", 1, 2, 2, 1),
    Sketcher.Constraint("Tangent", 2, 2, 3, 1),
    Sketcher.Constraint("Tangent", 3, 2, 4, 1),
    Sketcher.Constraint("Tangent", 4, 2, 5, 1),
    Sketcher.Constraint("Tangent", 5, 2, 6, 1),
    Sketcher.Constraint("Tangent", 6, 2, 7, 1),
    Sketcher.Constraint("Tangent", 7, 2, 8, 1),
    Sketcher.Constraint("Tangent", 8, 2, 9, 1),
    Sketcher.Constraint("Tangent", 9, 2, 10, 1),
    Sketcher.Constraint("Tangent", 10, 2, 11, 1),
    Sketcher.Constraint("Tangent", 11, 2, 0, 1),
    Sketcher.Constraint("Vertical", 2),
    Sketcher.Constraint("Vertical", 8),
    Sketcher.Constraint("Equal", 1, 3),
    Sketcher.Constraint("Equal", 3, 5),
    Sketcher.Constraint("Equal", 5, 7),
    Sketcher.Constraint("Equal", 7, 9),
    Sketcher.Constraint("Equal", 9, 11),
    Sketcher.Constraint("Parallel", 0, 6),
    Sketcher.Constraint("Horizontal", 3, 3, 7, 3),
    Sketcher.Constraint("Horizontal", 4, 2, 5, 2),
    Sketcher.Constraint("Radius", 1, 1.0),
    Sketcher.Constraint("DistanceX", -1, 1, 5, 3, 40.0),
    Sketcher.Constraint("DistanceX", -1, 1, 1, 3, 28.8),
    Sketcher.Constraint("DistanceY", 8, 1, 8, 2, 7.01149),
    Sketcher.Constraint("DistanceY", -1, 1, 4, 2, 4.178299),
    Sketcher.Constraint("DistanceX", -1, 1, 9, 2, 51.922602),
    Sketcher.Constraint("DistanceY", 5, 3, 1, 3, 18.620101),
    Sketcher.Constraint("Distance", 0, 16.219271),
])
pocket7 = body.newObject("PartDesign::Pocket", "Pocket006")
pocket7.Profile = sketch8
pocket7.Type = "ThroughAll"

doc.recompute()
